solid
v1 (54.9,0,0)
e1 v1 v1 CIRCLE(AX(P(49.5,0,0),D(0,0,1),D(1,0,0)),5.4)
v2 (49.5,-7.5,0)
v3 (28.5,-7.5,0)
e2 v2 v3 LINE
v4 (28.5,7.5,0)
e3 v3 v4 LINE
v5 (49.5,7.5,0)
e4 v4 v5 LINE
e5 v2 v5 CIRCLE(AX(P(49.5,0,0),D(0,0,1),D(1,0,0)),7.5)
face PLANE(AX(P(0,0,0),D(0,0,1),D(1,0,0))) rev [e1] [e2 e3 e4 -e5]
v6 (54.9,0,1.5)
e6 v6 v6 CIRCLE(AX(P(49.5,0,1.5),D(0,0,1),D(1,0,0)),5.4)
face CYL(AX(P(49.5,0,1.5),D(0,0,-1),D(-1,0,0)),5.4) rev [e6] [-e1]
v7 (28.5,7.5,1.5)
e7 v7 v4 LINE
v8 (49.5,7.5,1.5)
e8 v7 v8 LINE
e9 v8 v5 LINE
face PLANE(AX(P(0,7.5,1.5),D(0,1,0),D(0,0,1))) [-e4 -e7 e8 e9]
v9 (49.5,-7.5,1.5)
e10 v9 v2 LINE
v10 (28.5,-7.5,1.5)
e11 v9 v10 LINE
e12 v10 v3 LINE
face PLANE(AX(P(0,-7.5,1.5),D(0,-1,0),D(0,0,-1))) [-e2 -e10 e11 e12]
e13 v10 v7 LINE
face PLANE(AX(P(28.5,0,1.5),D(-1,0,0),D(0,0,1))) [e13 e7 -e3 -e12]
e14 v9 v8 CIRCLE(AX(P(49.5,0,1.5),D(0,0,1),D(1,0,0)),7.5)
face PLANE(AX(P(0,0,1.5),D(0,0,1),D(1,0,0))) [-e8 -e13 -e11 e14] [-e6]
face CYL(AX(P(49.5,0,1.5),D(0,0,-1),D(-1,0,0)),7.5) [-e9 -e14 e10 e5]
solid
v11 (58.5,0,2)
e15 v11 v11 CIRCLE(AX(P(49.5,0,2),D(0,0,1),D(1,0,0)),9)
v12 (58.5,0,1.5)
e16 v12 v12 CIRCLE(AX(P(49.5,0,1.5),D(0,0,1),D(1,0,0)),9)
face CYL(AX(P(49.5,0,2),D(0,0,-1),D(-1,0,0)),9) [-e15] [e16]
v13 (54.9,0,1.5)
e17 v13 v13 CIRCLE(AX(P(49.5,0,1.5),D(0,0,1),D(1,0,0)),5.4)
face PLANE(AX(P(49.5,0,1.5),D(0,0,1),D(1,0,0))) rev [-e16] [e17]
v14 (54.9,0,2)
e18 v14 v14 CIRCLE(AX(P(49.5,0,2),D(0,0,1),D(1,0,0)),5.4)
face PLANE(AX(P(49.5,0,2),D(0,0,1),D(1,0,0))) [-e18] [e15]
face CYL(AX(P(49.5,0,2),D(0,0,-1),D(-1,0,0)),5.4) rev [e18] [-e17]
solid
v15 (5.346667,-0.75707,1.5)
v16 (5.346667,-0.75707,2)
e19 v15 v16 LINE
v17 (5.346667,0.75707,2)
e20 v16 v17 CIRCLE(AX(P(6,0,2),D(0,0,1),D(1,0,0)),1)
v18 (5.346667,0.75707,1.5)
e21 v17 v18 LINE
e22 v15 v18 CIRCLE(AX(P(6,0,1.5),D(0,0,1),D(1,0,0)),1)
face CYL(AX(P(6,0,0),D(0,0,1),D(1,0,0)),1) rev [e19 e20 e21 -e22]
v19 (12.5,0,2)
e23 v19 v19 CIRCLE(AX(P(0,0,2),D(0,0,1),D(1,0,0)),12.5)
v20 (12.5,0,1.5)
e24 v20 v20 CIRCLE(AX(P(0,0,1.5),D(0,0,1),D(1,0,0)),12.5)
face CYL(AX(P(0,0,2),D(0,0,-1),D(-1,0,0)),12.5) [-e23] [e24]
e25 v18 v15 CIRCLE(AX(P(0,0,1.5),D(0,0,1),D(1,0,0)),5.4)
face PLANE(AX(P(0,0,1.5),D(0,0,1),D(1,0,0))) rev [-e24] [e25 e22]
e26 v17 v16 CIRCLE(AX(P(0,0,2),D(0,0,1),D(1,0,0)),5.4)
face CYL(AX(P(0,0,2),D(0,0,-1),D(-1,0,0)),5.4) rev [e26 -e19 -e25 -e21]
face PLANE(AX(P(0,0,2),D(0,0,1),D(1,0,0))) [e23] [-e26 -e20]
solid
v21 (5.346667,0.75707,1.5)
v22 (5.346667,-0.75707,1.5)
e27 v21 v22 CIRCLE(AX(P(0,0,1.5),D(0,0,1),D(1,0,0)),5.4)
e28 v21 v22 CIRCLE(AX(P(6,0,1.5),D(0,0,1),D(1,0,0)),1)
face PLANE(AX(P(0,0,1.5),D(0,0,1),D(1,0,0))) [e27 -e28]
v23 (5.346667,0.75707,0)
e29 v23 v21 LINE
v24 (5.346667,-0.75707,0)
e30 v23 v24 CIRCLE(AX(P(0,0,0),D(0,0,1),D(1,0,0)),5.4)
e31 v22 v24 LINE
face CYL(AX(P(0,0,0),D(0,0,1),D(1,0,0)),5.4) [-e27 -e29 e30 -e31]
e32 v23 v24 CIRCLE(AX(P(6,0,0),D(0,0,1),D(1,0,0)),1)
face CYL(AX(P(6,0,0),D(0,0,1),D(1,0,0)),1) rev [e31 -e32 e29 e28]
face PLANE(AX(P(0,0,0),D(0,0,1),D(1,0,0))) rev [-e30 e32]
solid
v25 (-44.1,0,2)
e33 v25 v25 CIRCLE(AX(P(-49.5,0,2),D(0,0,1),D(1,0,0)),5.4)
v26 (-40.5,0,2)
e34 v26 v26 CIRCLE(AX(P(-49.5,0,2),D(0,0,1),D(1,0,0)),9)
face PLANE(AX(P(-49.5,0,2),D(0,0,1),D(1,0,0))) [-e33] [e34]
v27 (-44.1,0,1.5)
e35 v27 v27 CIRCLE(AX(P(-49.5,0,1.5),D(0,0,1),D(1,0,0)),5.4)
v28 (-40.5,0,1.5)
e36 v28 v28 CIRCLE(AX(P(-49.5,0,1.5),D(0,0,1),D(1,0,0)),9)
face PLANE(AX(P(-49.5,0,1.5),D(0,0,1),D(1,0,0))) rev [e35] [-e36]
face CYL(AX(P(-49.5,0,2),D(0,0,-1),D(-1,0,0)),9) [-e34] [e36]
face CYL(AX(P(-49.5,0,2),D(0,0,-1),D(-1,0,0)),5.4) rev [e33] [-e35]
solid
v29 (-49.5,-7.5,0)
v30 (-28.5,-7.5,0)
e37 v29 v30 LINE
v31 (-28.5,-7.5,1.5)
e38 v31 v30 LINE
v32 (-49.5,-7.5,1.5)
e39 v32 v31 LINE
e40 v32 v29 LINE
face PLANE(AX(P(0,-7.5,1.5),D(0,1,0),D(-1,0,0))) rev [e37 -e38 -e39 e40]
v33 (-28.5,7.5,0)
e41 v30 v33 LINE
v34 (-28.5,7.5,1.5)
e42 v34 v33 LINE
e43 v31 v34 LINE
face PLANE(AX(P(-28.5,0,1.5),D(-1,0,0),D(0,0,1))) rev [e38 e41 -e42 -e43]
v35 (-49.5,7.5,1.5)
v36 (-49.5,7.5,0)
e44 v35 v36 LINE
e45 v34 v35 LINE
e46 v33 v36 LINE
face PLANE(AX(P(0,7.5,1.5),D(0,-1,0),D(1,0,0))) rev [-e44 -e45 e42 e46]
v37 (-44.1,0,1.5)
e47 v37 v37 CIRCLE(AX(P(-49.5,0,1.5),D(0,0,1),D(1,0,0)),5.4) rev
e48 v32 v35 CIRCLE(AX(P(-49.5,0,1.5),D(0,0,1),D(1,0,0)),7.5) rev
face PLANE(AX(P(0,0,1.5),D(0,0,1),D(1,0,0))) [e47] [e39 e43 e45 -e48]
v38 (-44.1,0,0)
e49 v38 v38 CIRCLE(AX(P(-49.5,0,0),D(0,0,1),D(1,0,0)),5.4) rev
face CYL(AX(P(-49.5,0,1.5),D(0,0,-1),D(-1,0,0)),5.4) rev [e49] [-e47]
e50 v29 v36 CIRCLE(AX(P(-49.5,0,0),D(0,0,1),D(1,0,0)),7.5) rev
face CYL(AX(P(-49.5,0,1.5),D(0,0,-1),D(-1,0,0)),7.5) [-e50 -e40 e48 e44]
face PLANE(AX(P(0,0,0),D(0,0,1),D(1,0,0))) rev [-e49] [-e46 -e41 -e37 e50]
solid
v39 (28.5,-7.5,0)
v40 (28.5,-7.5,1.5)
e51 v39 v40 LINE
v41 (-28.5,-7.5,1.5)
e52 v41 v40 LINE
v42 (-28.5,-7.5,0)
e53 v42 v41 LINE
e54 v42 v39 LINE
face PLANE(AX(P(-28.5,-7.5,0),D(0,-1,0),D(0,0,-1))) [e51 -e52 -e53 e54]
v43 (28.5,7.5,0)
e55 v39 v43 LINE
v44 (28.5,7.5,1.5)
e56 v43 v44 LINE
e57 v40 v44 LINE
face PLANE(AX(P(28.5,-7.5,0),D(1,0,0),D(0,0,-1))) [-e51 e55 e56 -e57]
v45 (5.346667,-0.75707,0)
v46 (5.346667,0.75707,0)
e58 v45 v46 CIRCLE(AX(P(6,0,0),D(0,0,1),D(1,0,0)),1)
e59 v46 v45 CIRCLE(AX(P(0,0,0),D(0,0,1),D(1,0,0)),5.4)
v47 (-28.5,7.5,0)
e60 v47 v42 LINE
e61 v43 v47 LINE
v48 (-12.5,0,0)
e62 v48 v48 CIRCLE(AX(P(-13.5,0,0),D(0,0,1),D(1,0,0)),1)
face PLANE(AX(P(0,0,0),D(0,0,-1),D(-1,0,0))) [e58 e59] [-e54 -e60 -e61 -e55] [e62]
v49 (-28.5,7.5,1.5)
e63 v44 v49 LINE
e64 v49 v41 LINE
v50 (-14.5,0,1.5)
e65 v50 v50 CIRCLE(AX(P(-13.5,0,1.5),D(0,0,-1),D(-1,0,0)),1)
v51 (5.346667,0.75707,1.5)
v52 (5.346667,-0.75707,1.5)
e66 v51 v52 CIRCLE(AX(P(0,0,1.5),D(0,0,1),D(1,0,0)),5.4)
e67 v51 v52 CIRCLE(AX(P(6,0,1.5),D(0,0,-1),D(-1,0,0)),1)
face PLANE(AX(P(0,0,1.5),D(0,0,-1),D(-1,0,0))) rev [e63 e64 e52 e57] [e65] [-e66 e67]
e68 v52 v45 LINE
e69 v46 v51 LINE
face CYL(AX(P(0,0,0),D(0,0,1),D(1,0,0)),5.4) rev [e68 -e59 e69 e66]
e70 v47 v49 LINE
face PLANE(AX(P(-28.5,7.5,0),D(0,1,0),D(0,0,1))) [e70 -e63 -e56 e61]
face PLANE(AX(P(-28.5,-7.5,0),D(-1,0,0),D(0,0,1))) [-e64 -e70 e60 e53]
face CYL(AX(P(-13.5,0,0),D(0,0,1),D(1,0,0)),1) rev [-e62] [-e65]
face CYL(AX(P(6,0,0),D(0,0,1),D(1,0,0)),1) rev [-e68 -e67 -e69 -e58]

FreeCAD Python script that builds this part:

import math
import FreeCAD as App
import Part
import Sketcher


def add_polygon(sketch, points):
    """Adds a closed chain of lines whose ends are joined by coincident constraints."""
    first, n = sketch.GeometryCount, len(points)
    for a, b in zip(points, points[1:] + points[:1]):
        sketch.addGeometry(Part.LineSegment(App.Vector(*a, 0), App.Vector(*b, 0)), False)
    for i in range(n):
        sketch.addConstraint(Sketcher.Constraint("Coincident", first + i, 2, first + (i + 1) % n, 1))

doc = App.newDocument("Part")
params = doc.addObject("Spreadsheet::Sheet", "Params")
for row, (alias, value) in enumerate([
    ("sketch1_diameter", "10.8 mm"),
    ("sketch1_radius", "7.5 mm"),
    ("sketch1_width", "21 mm"),
    ("pad1_length", "1.5 mm"),
    ("sketch2_diameter", "10.8 mm"),
    ("sketch2_radius", "7.5 mm"),
    ("sketch2_width", "21 mm"),
    ("pad2_length", "1.5 mm"),
    ("sketch3_diameter", "10.8 mm"),
    ("sketch3_width", "57 mm"),
    ("sketch3_height", "15 mm"),
    ("pad3_length", "1.5 mm"),
    ("sketch4_diameter", "25 mm"),
    ("sketch4_diameter2", "10.8 mm"),
    ("pad4_length", "0.5 mm"),
    ("sketch5_diameter", "18 mm"),
    ("sketch5_diameter2", "10.8 mm"),
    ("pad5_length", "0.5 mm"),
    ("sketch6_diameter", "18 mm"),
    ("sketch6_diameter2", "10.8 mm"),
    ("pad6_length", "0.5 mm"),
    ("sketch7_diameter", "10.8 mm"),
    ("pad7_length", "1.5 mm"),
    ("sketch8_diameter", "2 mm"),
    ("pad8_length", "1.5 mm"),
    ("pad8_length2", "2.5 mm"),
], start=1):
    params.set(f"A{row}", alias)
    params.set(f"B{row}", "=" + value)
    params.setAlias(f"B{row}", alias)

body = doc.addObject("PartDesign::Body", "Body")

# Sketch on XY plane
sketch1 = doc.addObject("Sketcher::SketchObject", "Sketch")
body.addObject(sketch1)
sketch1.AttachmentSupport = (doc.XY_Plane, [""])
sketch1.MapMode = "FlatFace"
sketch1.addGeometry(Part.ArcOfCircle(Part.Circle(App.Vector(-50, 0, 0), App.Vector(0, 0, 1), 8), math.radians(90), math.radians(270)), False)
sketch1.addGeometry(Part.LineSegment(App.Vector(-50, -8, 0), App.Vector(-28, -8, 0)), False)
sketch1.addGeometry(Part.LineSegment(App.Vector(-28, -8, 0), App.Vector(-28, 8, 0)), False)
sketch1.addGeometry(Part.LineSegment(App.Vector(-28, 8, 0), App.Vector(-50, 8, 0)), False)
sketch1.addGeometry(Part.Circle(App.Vector(-50, 0, 0), App.Vector(0, 0, 1), 5), False)
sketch1.addConstraint(Sketcher.Constraint("Tangent", 0, 2, 1, 1))
sketch1.addConstraint(Sketcher.Constraint("Coincident", 1, 2, 2, 1))
sketch1.addConstraint(Sketcher.Constraint("Coincident", 2, 2, 3, 1))
sketch1.addConstraint(Sketcher.Constraint("Tangent", 3, 2, 0, 1))
sketch1.addConstraint(Sketcher.Constraint("Horizontal", 1))
sketch1.addConstraint(Sketcher.Constraint("Vertical", 2))
sketch1.addConstraint(Sketcher.Constraint("Horizontal", 3))
sketch1.addConstraint(Sketcher.Constraint("Coincident", 4, 3, 0, 3))
sketch1.addConstraint(Sketcher.Constraint("PointOnObject", 0, 3, -1))
sketch1.addConstraint(Sketcher.Constraint("Diameter", 4, 10.8))
sketch1.addConstraint(Sketcher.Constraint("Radius", 0, 7.5))
sketch1.addConstraint(Sketcher.Constraint("DistanceX", 1, 1, 1, 2, 21.0))
sketch1.addConstraint(Sketcher.Constraint("DistanceX", 0, 3, -1, 1, 49.5))
sketch1.setExpression("Constraints[9]", "Params.sketch1_diameter")
sketch1.setExpression("Constraints[10]", "Params.sketch1_radius")
sketch1.setExpression("Constraints[11]", "Params.sketch1_width")
pad1 = doc.addObject("PartDesign::Pad", "Pad")
body.addObject(pad1)
pad1.Profile = sketch1
pad1.setExpression("Length", "Params.pad1_length")
body2 = doc.addObject("PartDesign::Body", "Body001")

# Sketch on XY plane
sketch2 = doc.addObject("Sketcher::SketchObject", "Sketch001")
body2.addObject(sketch2)
sketch2.AttachmentSupport = (doc.getObject("XY_Plane001"), [""])
sketch2.MapMode = "FlatFace"
sketch2.addGeometry(Part.LineSegment(App.Vector(28, -8, 0), App.Vector(50, -8, 0)), False)
sketch2.addGeometry(Part.ArcOfCircle(Part.Circle(App.Vector(50, 0, 0), App.Vector(0, 0, 1), 8), math.radians(-90), math.radians(90)), False)
sketch2.addGeometry(Part.LineSegment(App.Vector(50, 8, 0), App.Vector(28, 8, 0)), False)
sketch2.addGeometry(Part.LineSegment(App.Vector(28, 8, 0), App.Vector(28, -8, 0)), False)
sketch2.addGeometry(Part.Circle(App.Vector(50, 0, 0), App.Vector(0, 0, 1), 5), False)
sketch2.addConstraint(Sketcher.Constraint("Tangent", 0, 2, 1, 1))
sketch2.addConstraint(Sketcher.Constraint("Tangent", 1, 2, 2, 1))
sketch2.addConstraint(Sketcher.Constraint("Coincident", 2, 2, 3, 1))
sketch2.addConstraint(Sketcher.Constraint("Coincident", 3, 2, 0, 1))
sketch2.addConstraint(Sketcher.Constraint("Horizontal", 0))
sketch2.addConstraint(Sketcher.Constraint("Horizontal", 2))
sketch2.addConstraint(Sketcher.Constraint("Vertical", 3))
sketch2.addConstraint(Sketcher.Constraint("Coincident", 4, 3, 1, 3))
sketch2.addConstraint(Sketcher.Constraint("PointOnObject", 1, 3, -1))
sketch2.addConstraint(Sketcher.Constraint("Diameter", 4, 10.8))
sketch2.addConstraint(Sketcher.Constraint("Radius", 1, 7.5))
sketch2.addConstraint(Sketcher.Constraint("DistanceX", 0, 1, 0, 2, 21.0))
sketch2.addConstraint(Sketcher.Constraint("DistanceX", -1, 1, 1, 3, 49.5))
sketch2.setExpression("Constraints[9]", "Params.sketch2_diameter")
sketch2.setExpression("Constraints[10]", "Params.sketch2_radius")
sketch2.setExpression("Constraints[11]", "Params.sketch2_width")
pad2 = doc.addObject("PartDesign::Pad", "Pad001")
body2.addObject(pad2)
pad2.Profile = sketch2
pad2.setExpression("Length", "Params.pad2_length")
body3 = doc.addObject("PartDesign::Body", "Body002")

# Sketch on XY plane
sketch3 = doc.addObject("Sketcher::SketchObject", "Sketch002")
body3.addObject(sketch3)
sketch3.AttachmentSupport = (doc.getObject("XY_Plane002"), [""])
sketch3.MapMode = "FlatFace"
sketch3.AttachmentOffset = App.Placement(App.Vector(0, 0, 1.5), App.Rotation())
add_polygon(sketch3, [(-28, 8), (-28, -8), (28, -8), (28, 8)])  # lines 0-3
sketch3.addGeometry(Part.Circle(App.Vector(0, 0, 0), App.Vector(0, 0, 1), 5), False)  # 4
sketch3.addConstraint(Sketcher.Constraint("Vertical", 0))
sketch3.addConstraint(Sketcher.Constraint("Horizontal", 1))
sketch3.addConstraint(Sketcher.Constraint("Vertical", 2))
sketch3.addConstraint(Sketcher.Constraint("Horizontal", 3))
sketch3.addConstraint(Sketcher.Constraint("Coincident", 4, 3, -1, 1))
sketch3.addConstraint(Sketcher.Constraint("Symmetric", 0, 2, 2, 2, -1, 1))
sketch3.addConstraint(Sketcher.Constraint("Diameter", 4, 10.8))
sketch3.addConstraint(Sketcher.Constraint("DistanceX", 1, 1, 1, 2, 57.0))
sketch3.addConstraint(Sketcher.Constraint("DistanceY", 0, 2, 0, 1, 15.0))
sketch3.setExpression("Constraints[10]", "Params.sketch3_diameter")
sketch3.setExpression("Constraints[11]", "Params.sketch3_width")
sketch3.setExpression("Constraints[12]", "Params.sketch3_height")
pad3 = doc.addObject("PartDesign::Pad", "Pad002")
body3.addObject(pad3)
pad3.Profile = sketch3
pad3.setExpression("Length", "Params.pad3_length")
pad3.Reversed = True
body4 = doc.addObject("PartDesign::Body", "Body003")

# Sketch on XY plane
sketch4 = doc.addObject("Sketcher::SketchObject", "Sketch003")
body4.addObject(sketch4)
sketch4.AttachmentSupport = (doc.getObject("XY_Plane003"), [""])
sketch4.MapMode = "FlatFace"
sketch4.AttachmentOffset = App.Placement(App.Vector(0, 0, 1.5), App.Rotation())
sketch4.addGeometry(Part.Circle(App.Vector(0, 0, 0), App.Vector(0, 0, 1), 12), False)
sketch4.addGeometry(Part.Circle(App.Vector(0, 0, 0), App.Vector(0, 0, 1), 5), False)
sketch4.addConstraint(Sketcher.Constraint("Coincident", 0, 3, -1, 1))
sketch4.addConstraint(Sketcher.Constraint("Coincident", 1, 3, -1, 1))
sketch4.addConstraint(Sketcher.Constraint("Diameter", 0, 25.0))
sketch4.addConstraint(Sketcher.Constraint("Diameter", 1, 10.8))
sketch4.setExpression("Constraints[2]", "Params.sketch4_diameter")
sketch4.setExpression("Constraints[3]", "Params.sketch4_diameter2")
pad4 = doc.addObject("PartDesign::Pad", "Pad003")
body4.addObject(pad4)
pad4.Profile = sketch4
pad4.setExpression("Length", "Params.pad4_length")
body5 = doc.addObject("PartDesign::Body", "Body004")

# Sketch on XY plane
sketch5 = doc.addObject("Sketcher::SketchObject", "Sketch004")
body5.addObject(sketch5)
sketch5.AttachmentSupport = (doc.getObject("XY_Plane004"), [""])
sketch5.MapMode = "FlatFace"
sketch5.AttachmentOffset = App.Placement(App.Vector(0, 0, 1.5), App.Rotation())
sketch5.addGeometry(Part.Circle(App.Vector(50, 0, 0), App.Vector(0, 0, 1), 9), False)
sketch5.addGeometry(Part.Circle(App.Vector(50, 0, 0), App.Vector(0, 0, 1), 5), False)
sketch5.addConstraint(Sketcher.Constraint("Coincident", 1, 3, 0, 3))
sketch5.addConstraint(Sketcher.Constraint("PointOnObject", 0, 3, -1))
sketch5.addConstraint(Sketcher.Constraint("Diameter", 0, 18.0))
sketch5.addConstraint(Sketcher.Constraint("Diameter", 1, 10.8))
sketch5.addConstraint(Sketcher.Constraint("DistanceX", -1, 1, 0, 3, 49.5))
sketch5.setExpression("Constraints[2]", "Params.sketch5_diameter")
sketch5.setExpression("Constraints[3]", "Params.sketch5_diameter2")
pad5 = doc.addObject("PartDesign::Pad", "Pad004")
body5.addObject(pad5)
pad5.Profile = sketch5
pad5.setExpression("Length", "Params.pad5_length")
body6 = doc.addObject("PartDesign::Body", "Body005")

# Sketch on XY plane
sketch6 = doc.addObject("Sketcher::SketchObject", "Sketch005")
body6.addObject(sketch6)
sketch6.AttachmentSupport = (doc.getObject("XY_Plane005"), [""])
sketch6.MapMode = "FlatFace"
sketch6.AttachmentOffset = App.Placement(App.Vector(0, 0, 1.5), App.Rotation())
sketch6.addGeometry(Part.Circle(App.Vector(-50, 0, 0), App.Vector(0, 0, 1), 9), False)
sketch6.addGeometry(Part.Circle(App.Vector(-50, 0, 0), App.Vector(0, 0, 1), 5), False)
sketch6.addConstraint(Sketcher.Constraint("Coincident", 1, 3, 0, 3))
sketch6.addConstraint(Sketcher.Constraint("PointOnObject", 0, 3, -1))
sketch6.addConstraint(Sketcher.Constraint("Diameter", 0, 18.0))
sketch6.addConstraint(Sketcher.Constraint("Diameter", 1, 10.8))
sketch6.addConstraint(Sketcher.Constraint("DistanceX", 0, 3, -1, 1, 49.5))
sketch6.setExpression("Constraints[2]", "Params.sketch6_diameter")
sketch6.setExpression("Constraints[3]", "Params.sketch6_diameter2")
pad6 = doc.addObject("PartDesign::Pad", "Pad005")
body6.addObject(pad6)
pad6.Profile = sketch6
pad6.setExpression("Length", "Params.pad6_length")
body7 = doc.addObject("PartDesign::Body", "Body006")

# Sketch on XY plane
sketch7 = doc.addObject("Sketcher::SketchObject", "Sketch006")
body7.addObject(sketch7)
sketch7.AttachmentSupport = (doc.getObject("XY_Plane006"), [""])
sketch7.MapMode = "FlatFace"
sketch7.AttachmentOffset = App.Placement(App.Vector(0, 0, 1.5), App.Rotation())
sketch7.addGeometry(Part.Circle(App.Vector(0, 0, 0), App.Vector(0, 0, 1), 5), False)
sketch7.addConstraint(Sketcher.Constraint("Coincident", 0, 3, -1, 1))
sketch7.addConstraint(Sketcher.Constraint("Diameter", 0, 10.8))
sketch7.setExpression("Constraints[1]", "Params.sketch7_diameter")
pad7 = doc.addObject("PartDesign::Pad", "Pad006")
body7.addObject(pad7)
pad7.Profile = sketch7
pad7.setExpression("Length", "Params.pad7_length")
pad7.Reversed = True
body8 = doc.addObject("PartDesign::Body", "Body007")
body8.AllowCompound = True

# Sketch on XY plane
sketch8 = doc.addObject("Sketcher::SketchObject", "Sketch007")
body8.addObject(sketch8)
sketch8.AttachmentSupport = (doc.getObject("XY_Plane007"), [""])
sketch8.MapMode = "FlatFace"
sketch8.AttachmentOffset = App.Placement(App.Vector(0, 0, 1.5), App.Rotation())
sketch8.addGeometry(Part.Circle(App.Vector(-13.5, 0, 0), App.Vector(0, 0, 1), 1), False)
sketch8.addGeometry(Part.Circle(App.Vector(6, 0, 0), App.Vector(0, 0, 1), 1), False)
sketch8.addConstraint(Sketcher.Constraint("Equal", 0, 1))
sketch8.addConstraint(Sketcher.Constraint("PointOnObject", 0, 3, -1))
sketch8.addConstraint(Sketcher.Constraint("PointOnObject", 1, 3, -1))
sketch8.addConstraint(Sketcher.Constraint("Diameter", 0, 2.0))
sketch8.addConstraint(Sketcher.Constraint("DistanceX", -1, 1, 1, 3, 6.0))
sketch8.addConstraint(Sketcher.Constraint("DistanceX", 0, 3, -1, 1, 13.5))
sketch8.setExpression("Constraints[3]", "Params.sketch8_diameter")
pad8 = doc.addObject("PartDesign::Pad", "Pad007")
body8.addObject(pad8)
pad8.Profile = sketch8
pad8.Type = "TwoLengths"
pad8.setExpression("Length", "Params.pad8_length")
pad8.setExpression("Length2", "Params.pad8_length2")
doc.recompute()

body9 = doc.addObject("PartDesign::Body", "Body008")
body9.BaseFeature = body8
boolean = doc.addObject("PartDesign::Boolean", "Boolean")
body3.addObject(boolean)
boolean.Type = "Cut"
boolean.addObjects([body9])
doc.recompute()

body10 = doc.addObject("PartDesign::Body", "Body009")
body10.BaseFeature = body8
boolean2 = doc.addObject("PartDesign::Boolean", "Boolean001")
body4.addObject(boolean2)
boolean2.Type = "Cut"
boolean2.addObjects([body10])
doc.recompute()

boolean3 = doc.addObject("PartDesign::Boolean", "Boolean002")
body7.addObject(boolean3)
boolean3.Type = "Cut"
boolean3.addObjects([body8])

doc.recompute()
